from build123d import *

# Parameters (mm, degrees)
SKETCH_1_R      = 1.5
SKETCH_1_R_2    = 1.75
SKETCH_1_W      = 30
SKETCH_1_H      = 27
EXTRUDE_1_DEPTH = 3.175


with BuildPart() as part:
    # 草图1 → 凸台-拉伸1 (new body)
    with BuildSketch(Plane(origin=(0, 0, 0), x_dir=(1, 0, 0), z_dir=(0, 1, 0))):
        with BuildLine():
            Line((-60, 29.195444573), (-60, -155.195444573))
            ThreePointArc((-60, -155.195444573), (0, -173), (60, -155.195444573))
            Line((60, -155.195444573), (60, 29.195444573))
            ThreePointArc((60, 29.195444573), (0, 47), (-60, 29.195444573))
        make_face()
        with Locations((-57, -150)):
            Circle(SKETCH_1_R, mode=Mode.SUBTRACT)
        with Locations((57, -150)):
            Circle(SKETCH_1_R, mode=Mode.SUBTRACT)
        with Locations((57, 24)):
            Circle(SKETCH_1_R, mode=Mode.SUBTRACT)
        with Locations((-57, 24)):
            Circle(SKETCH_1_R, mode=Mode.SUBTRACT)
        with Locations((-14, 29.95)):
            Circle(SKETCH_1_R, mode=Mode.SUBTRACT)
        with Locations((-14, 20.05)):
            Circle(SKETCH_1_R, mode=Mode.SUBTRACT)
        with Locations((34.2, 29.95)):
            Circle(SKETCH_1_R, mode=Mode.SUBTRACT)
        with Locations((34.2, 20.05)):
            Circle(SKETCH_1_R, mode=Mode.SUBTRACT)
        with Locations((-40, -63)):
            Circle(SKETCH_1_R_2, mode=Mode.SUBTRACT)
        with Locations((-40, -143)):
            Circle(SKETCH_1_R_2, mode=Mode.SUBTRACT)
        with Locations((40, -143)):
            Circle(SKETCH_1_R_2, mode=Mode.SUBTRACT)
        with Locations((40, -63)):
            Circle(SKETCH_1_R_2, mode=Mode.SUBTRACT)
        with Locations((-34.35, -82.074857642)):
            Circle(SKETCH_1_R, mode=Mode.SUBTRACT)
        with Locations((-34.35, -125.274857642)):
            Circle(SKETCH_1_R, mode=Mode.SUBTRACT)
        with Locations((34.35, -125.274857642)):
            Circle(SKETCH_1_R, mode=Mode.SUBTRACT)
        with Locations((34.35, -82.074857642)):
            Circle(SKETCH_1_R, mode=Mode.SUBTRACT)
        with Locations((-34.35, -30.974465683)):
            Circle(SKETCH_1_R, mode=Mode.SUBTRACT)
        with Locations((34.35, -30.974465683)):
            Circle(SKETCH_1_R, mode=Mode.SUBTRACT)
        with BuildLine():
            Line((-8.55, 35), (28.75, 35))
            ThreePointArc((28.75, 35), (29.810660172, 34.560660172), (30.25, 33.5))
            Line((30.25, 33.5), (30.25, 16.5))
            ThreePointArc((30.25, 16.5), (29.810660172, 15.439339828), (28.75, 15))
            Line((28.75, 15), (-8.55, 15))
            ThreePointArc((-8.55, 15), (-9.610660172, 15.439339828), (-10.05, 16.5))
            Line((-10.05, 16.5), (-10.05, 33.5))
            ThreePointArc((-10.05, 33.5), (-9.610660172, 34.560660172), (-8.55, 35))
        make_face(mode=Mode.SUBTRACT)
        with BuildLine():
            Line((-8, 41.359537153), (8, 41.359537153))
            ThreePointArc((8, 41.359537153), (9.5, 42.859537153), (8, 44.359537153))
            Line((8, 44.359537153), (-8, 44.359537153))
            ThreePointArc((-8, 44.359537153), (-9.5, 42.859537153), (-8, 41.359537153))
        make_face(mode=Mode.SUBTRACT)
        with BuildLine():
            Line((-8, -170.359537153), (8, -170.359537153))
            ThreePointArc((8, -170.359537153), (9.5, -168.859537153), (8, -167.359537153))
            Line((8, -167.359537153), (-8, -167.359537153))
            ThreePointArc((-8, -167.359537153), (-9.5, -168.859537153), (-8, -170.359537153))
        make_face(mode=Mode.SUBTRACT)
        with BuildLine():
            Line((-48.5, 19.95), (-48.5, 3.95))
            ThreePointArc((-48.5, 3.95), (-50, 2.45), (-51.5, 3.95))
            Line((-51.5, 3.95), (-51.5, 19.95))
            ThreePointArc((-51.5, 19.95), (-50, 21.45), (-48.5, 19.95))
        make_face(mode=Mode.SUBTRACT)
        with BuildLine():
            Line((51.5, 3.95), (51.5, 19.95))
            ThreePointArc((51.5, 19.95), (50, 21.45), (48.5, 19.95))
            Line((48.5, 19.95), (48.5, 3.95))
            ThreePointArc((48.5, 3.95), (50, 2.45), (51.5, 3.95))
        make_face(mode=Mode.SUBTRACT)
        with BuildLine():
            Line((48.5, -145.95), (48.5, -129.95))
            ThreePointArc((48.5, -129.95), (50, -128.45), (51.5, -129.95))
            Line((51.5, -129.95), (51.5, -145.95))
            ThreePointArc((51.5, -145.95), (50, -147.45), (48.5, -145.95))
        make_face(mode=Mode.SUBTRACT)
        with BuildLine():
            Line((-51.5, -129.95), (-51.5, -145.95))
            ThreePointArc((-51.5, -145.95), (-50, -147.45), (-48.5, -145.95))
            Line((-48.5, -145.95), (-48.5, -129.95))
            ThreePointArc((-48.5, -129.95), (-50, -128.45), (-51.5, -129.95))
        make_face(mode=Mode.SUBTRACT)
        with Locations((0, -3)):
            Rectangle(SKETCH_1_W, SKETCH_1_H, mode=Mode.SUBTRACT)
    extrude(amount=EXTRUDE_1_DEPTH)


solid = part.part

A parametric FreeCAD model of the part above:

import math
import FreeCAD as App
import Part
import Sketcher

V = App.Vector

doc = App.newDocument("Part")
body = doc.addObject("PartDesign::Body", "Body")

# Sketch on XZ plane
sketch1 = body.newObject("Sketcher::SketchObject", "Sketch")
sketch1.AttachmentSupport = (doc.getObject("XZ_Plane"), [""])
sketch1.MapMode = "FlatFace"
sketch1.addGeometry([
    Part.LineSegment(V(-60, -29.195445, 0), V(-60, 155.195445, 0)),  # 0
    Part.ArcOfCircle(Part.Circle(V(0, 63, 0), V(0, 0, 1), 110), math.radians(56.944269), math.radians(123.055731)),  # 1
    Part.LineSegment(V(60, 155.195445, 0), V(60, -29.195445, 0)),  # 2
    Part.ArcOfCircle(Part.Circle(V(0, 63, 0), V(0, 0, 1), 110), math.radians(-123.055731), math.radians(-56.944269)),  # 3
    Part.Circle(V(-57, 150, 0), V(0, 0, 1), 1.5),  # 4
    Part.LineSegment(V(-51.5, 145.95, 0), V(-51.5, 129.95, 0)),  # 5
    Part.ArcOfCircle(Part.Circle(V(-50, 129.95, 0), V(0, 0, 1), 1.5), math.radians(180), math.radians(360)),  # 6
    Part.LineSegment(V(-48.5, 129.95, 0), V(-48.5, 145.95, 0)),  # 7
    Part.ArcOfCircle(Part.Circle(V(-50, 145.95, 0), V(0, 0, 1), 1.5), math.radians(0), math.radians(180)),  # 8
    Part.Circle(V(-40, 143, 0), V(0, 0, 1), 1.75),  # 9
    Part.Circle(V(-34.35, 125.274858, 0), V(0, 0, 1), 1.5),  # 10
    Part.Circle(V(-34.35, 82.074858, 0), V(0, 0, 1), 1.5),  # 11
    Part.LineSegment(V(8, 170.359537, 0), V(-8, 170.359537, 0)),  # 12
    Part.ArcOfCircle(Part.Circle(V(-8, 168.859537, 0), V(0, 0, 1), 1.5), math.radians(90), math.radians(270)),  # 13
    Part.LineSegment(V(-8, 167.359537, 0), V(8, 167.359537, 0)),  # 14
    Part.ArcOfCircle(Part.Circle(V(8, 168.859537, 0), V(0, 0, 1), 1.5), math.radians(-90), math.radians(90)),  # 15
    Part.Circle(V(57, 150, 0), V(0, 0, 1), 1.5),  # 16
    Part.Circle(V(40, 143, 0), V(0, 0, 1), 1.75),  # 17
    Part.Circle(V(34.35, 125.274858, 0), V(0, 0, 1), 1.5),  # 18
    Part.ArcOfCircle(Part.Circle(V(50, 145.95, 0), V(0, 0, 1), 1.5), math.radians(0), math.radians(180)),  # 19
    Part.LineSegment(V(48.5, 145.95, 0), V(48.5, 129.95, 0)),  # 20
    Part.ArcOfCircle(Part.Circle(V(50, 129.95, 0), V(0, 0, 1), 1.5), math.radians(180), math.radians(360)),  # 21
    Part.LineSegment(V(51.5, 129.95, 0), V(51.5, 145.95, 0)),  # 22
    Part.Circle(V(34.35, 82.074858, 0), V(0, 0, 1), 1.5),  # 23
    Part.Circle(V(-40, 63, 0), V(0, 0, 1), 1.75),  # 24
    Part.Circle(V(-34.35, 30.974466, 0), V(0, 0, 1), 1.5),  # 25
    Part.ArcOfCircle(Part.Circle(V(-50, -19.95, 0), V(0, 0, 1), 1.5), math.radians(180), math.radians(360)),  # 26
    Part.LineSegment(V(-48.5, -19.95, 0), V(-48.5, -3.95, 0)),  # 27
    Part.ArcOfCircle(Part.Circle(V(-50, -3.95, 0), V(0, 0, 1), 1.5), math.radians(0), math.radians(180)),  # 28
    Part.LineSegment(V(-51.5, -3.95, 0), V(-51.5, -19.95, 0)),  # 29
    Part.Circle(V(-57, -24, 0), V(0, 0, 1), 1.5),  # 30
    Part.Circle(V(-14, -20.05, 0), V(0, 0, 1), 1.5),  # 31
    Part.Circle(V(-14, -29.95, 0), V(0, 0, 1), 1.5),  # 32
    Part.Circle(V(40, 63, 0), V(0, 0, 1), 1.75),  # 33
    Part.Circle(V(34.35, 30.974466, 0), V(0, 0, 1), 1.5),  # 34
    Part.LineSegment(V(15, 16.5, 0), V(-15, 16.5, 0)),  # 35
    Part.LineSegment(V(-15, 16.5, 0), V(-15, -10.5, 0)),  # 36
    Part.LineSegment(V(-15, -10.5, 0), V(15, -10.5, 0)),  # 37
    Part.LineSegment(V(15, -10.5, 0), V(15, 16.5, 0)),  # 38
    Part.ArcOfCircle(Part.Circle(V(-8.55, -33.5, 0), V(0, 0, 1), 1.5), math.radians(180), math.radians(270)),  # 39
    Part.LineSegment(V(-8.55, -35, 0), V(28.75, -35, 0)),  # 40
    Part.ArcOfCircle(Part.Circle(V(28.75, -33.5, 0), V(0, 0, 1), 1.5), math.radians(-90), math.radians(0)),  # 41
    Part.LineSegment(V(30.25, -33.5, 0), V(30.25, -16.5, 0)),  # 42
    Part.ArcOfCircle(Part.Circle(V(28.75, -16.5, 0), V(0, 0, 1), 1.5), math.radians(0), math.radians(90)),  # 43
    Part.LineSegment(V(28.75, -15, 0), V(-8.55, -15, 0)),  # 44
    Part.ArcOfCircle(Part.Circle(V(-8.55, -16.5, 0), V(0, 0, 1), 1.5), math.radians(90), math.radians(180)),  # 45
    Part.LineSegment(V(-10.05, -16.5, 0), V(-10.05, -33.5, 0)),  # 46
    Part.LineSegment(V(8, -41.359537, 0), V(-8, -41.359537, 0)),  # 47
    Part.ArcOfCircle(Part.Circle(V(-8, -42.859537, 0), V(0, 0, 1), 1.5), math.radians(90), math.radians(270)),  # 48
    Part.LineSegment(V(-8, -44.359537, 0), V(8, -44.359537, 0)),  # 49
    Part.ArcOfCircle(Part.Circle(V(8, -42.859537, 0), V(0, 0, 1), 1.5), math.radians(-90), math.radians(90)),  # 50
    Part.LineSegment(V(51.5, -19.95, 0), V(51.5, -3.95, 0)),  # 51
    Part.ArcOfCircle(Part.Circle(V(50, -3.95, 0), V(0, 0, 1), 1.5), math.radians(0), math.radians(180)),  # 52
    Part.LineSegment(V(48.5, -3.95, 0), V(48.5, -19.95, 0)),  # 53
    Part.ArcOfCircle(Part.Circle(V(50, -19.95, 0), V(0, 0, 1), 1.5), math.radians(180), math.radians(360)),  # 54
    Part.Circle(V(34.2, -20.05, 0), V(0, 0, 1), 1.5),  # 55
    Part.Circle(V(34.2, -29.95, 0), V(0, 0, 1), 1.5),  # 56
    Part.Circle(V(57, -24, 0), V(0, 0, 1), 1.5),  # 57
], False)
sketch1.addConstraint([
    Sketcher.Constraint("Coincident", 0, 2, 1, 2),
    Sketcher.Constraint("Coincident", 1, 1, 2, 1),
    Sketcher.Constraint("Coincident", 2, 2, 3, 2),
    Sketcher.Constraint("Coincident", 3, 1, 0, 1),
    Sketcher.Constraint("Tangent", 5, 2, 6, 1),
    Sketcher.Constraint("Tangent", 6, 2, 7, 1),
    Sketcher.Constraint("Tangent", 7, 2, 8, 1),
    Sketcher.Constraint("Tangent", 8, 2, 5, 1),
    Sketcher.Constraint("Tangent", 12, 2, 13, 1),
    Sketcher.Constraint("Tangent", 13, 2, 14, 1),
    Sketcher.Constraint("Tangent", 14, 2, 15, 1),
    Sketcher.Constraint("Tangent", 15, 2, 12, 1),
    Sketcher.Constraint("Tangent", 19, 2, 20, 1),
    Sketcher.Constraint("Tangent", 20, 2, 21, 1),
    Sketcher.Constraint("Tangent", 21, 2, 22, 1),
    Sketcher.Constraint("Tangent", 22, 2, 19, 1),
    Sketcher.Constraint("Tangent", 26, 2, 27, 1),
    Sketcher.Constraint("Tangent", 27, 2, 28, 1),
    Sketcher.Constraint("Tangent", 28, 2, 29, 1),
    Sketcher.Constraint("Tangent", 29, 2, 26, 1),
    Sketcher.Constraint("Coincident", 35, 2, 36, 1),
    Sketcher.Constraint("Coincident", 36, 2, 37, 1),
    Sketcher.Constraint("Coincident", 37, 2, 38, 1),
    Sketcher.Constraint("Coincident", 38, 2, 35, 1),
    Sketcher.Constraint("Tangent", 39, 2, 40, 1),
    Sketcher.Constraint("Tangent", 40, 2, 41, 1),
    Sketcher.Constraint("Tangent", 41, 2, 42, 1),
    Sketcher.Constraint("Tangent", 42, 2, 43, 1),
    Sketcher.Constraint("Tangent", 43, 2, 44, 1),
    Sketcher.Constraint("Tangent", 44, 2, 45, 1),
    Sketcher.Constraint("Tangent", 45, 2, 46, 1),
    Sketcher.Constraint("Tangent", 46, 2, 39, 1),
    Sketcher.Constraint("Tangent", 47, 2, 48, 1),
    Sketcher.Constraint("Tangent", 48, 2, 49, 1),
    Sketcher.Constraint("Tangent", 49, 2, 50, 1),
    Sketcher.Constraint("Tangent", 50, 2, 47, 1),
    Sketcher.Constraint("Tangent", 51, 2, 52, 1),
    Sketcher.Constraint("Tangent", 52, 2, 53, 1),
    Sketcher.Constraint("Tangent", 53, 2, 54, 1),
    Sketcher.Constraint("Tangent", 54, 2, 51, 1),
    Sketcher.Constraint("Vertical", 0),
    Sketcher.Constraint("Vertical", 2),
    Sketcher.Constraint("Vertical", 5),
    Sketcher.Constraint("Vertical", 7),
    Sketcher.Constraint("Horizontal", 12),
    Sketcher.Constraint("Horizontal", 14),
    Sketcher.Constraint("Vertical", 20),
    Sketcher.Constraint("Vertical", 22),
    Sketcher.Constraint("Vertical", 27),
    Sketcher.Constraint("Vertical", 29),
    Sketcher.Constraint("Horizontal", 35),
    Sketcher.Constraint("Vertical", 36),
    Sketcher.Constraint("Horizontal", 37),
    Sketcher.Constraint("Vertical", 38),
    Sketcher.Constraint("Horizontal", 40),
    Sketcher.Constraint("Vertical", 42),
    Sketcher.Constraint("Horizontal", 44),
    Sketcher.Constraint("Vertical", 46),
    Sketcher.Constraint("Horizontal", 47),
    Sketcher.Constraint("Horizontal", 49),
    Sketcher.Constraint("Vertical", 51),
    Sketcher.Constraint("Vertical", 53),
    Sketcher.Constraint("Coincident", 3, 3, 1, 3),
    Sketcher.Constraint("Equal", 1, 3),
    Sketcher.Constraint("Equal", 4, 6),
    Sketcher.Constraint("Equal", 8, 10),
    Sketcher.Constraint("Equal", 10, 11),
    Sketcher.Constraint("Equal", 11, 13),
    Sketcher.Constraint("Equal", 15, 16),
    Sketcher.Constraint("Equal", 9, 17),
    Sketcher.Constraint("Equal", 16, 18),
    Sketcher.Constraint("Equal", 18, 19),
    Sketcher.Constraint("Equal", 21, 23),
    Sketcher.Constraint("Equal", 17, 24),
    Sketcher.Constraint("Equal", 23, 25),
    Sketcher.Constraint("Equal", 25, 26),
    Sketcher.Constraint("Equal", 28, 30),
    Sketcher.Constraint("Equal", 30, 31),
    Sketcher.Constraint("Equal", 31, 32),
    Sketcher.Constraint("Equal", 24, 33),
    Sketcher.Constraint("Equal", 32, 34),
    Sketcher.Constraint("Equal", 34, 39),
    Sketcher.Constraint("Equal", 39, 41),
    Sketcher.Constraint("Equal", 41, 43),
    Sketcher.Constraint("Equal", 43, 45),
    Sketcher.Constraint("Equal", 45, 48),
    Sketcher.Constraint("Equal", 50, 52),
    Sketcher.Constraint("Equal", 54, 55),
    Sketcher.Constraint("Equal", 55, 56),
    Sketcher.Constraint("Equal", 56, 57),
    Sketcher.Constraint("Symmetric", 4, 3, 16, 3, -2),
    Sketcher.Constraint("Symmetric", 9, 3, 17, 3, -2),
    Sketcher.Constraint("Symmetric", 10, 3, 18, 3, -2),
    Sketcher.Constraint("Symmetric", 8, 3, 19, 3, -2),
    Sketcher.Constraint("Symmetric", 11, 3, 23, 3, -2),
    Sketcher.Constraint("Symmetric", 24, 3, 33, 3, -2),
    Sketcher.Constraint("Symmetric", 25, 3, 34, 3, -2),
    Sketcher.Constraint("Symmetric", 28, 3, 52, 3, -2),
    Sketcher.Constraint("Symmetric", 30, 3, 57, 3, -2),
    Sketcher.Constraint("Symmetric", 0, 2, 1, 1, -2),
    Sketcher.Constraint("Horizontal", 6, 3, 21, 3),
    Sketcher.Constraint("Horizontal", 3, 3, 24, 3),
    Sketcher.Constraint("Horizontal", 26, 3, 54, 3),
    Sketcher.Constraint("Horizontal", 31, 3, 55, 3),
    Sketcher.Constraint("Horizontal", 32, 3, 56, 3),
    Sketcher.Constraint("Vertical", 10, 3, 11, 3),
    Sketcher.Constraint("Vertical", 9, 3, 24, 3),
    Sketcher.Constraint("Vertical", 11, 3, 25, 3),
    Sketcher.Constraint("Vertical", 8, 3, 26, 3),
    Sketcher.Constraint("Vertical", 4, 3, 30, 3),
    Sketcher.Constraint("Vertical", 31, 3, 32, 3),
    Sketcher.Constraint("Vertical", 13, 3, 48, 3),
    Sketcher.Constraint("Vertical", 15, 3, 50, 3),
    Sketcher.Constraint("Vertical", 55, 3, 56, 3),
    Sketcher.Constraint("Equal", 49, 5),
    Sketcher.Constraint("Equal", 22, 27),
    Sketcher.Constraint("Diameter", 4, 3.0),
    Sketcher.Constraint("Radius", 1, 110.0),
    Sketcher.Constraint("Diameter", 9, 3.5),
    Sketcher.Constraint("DistanceX", 12, 2, 12, 1, 16.0),
    Sketcher.Constraint("DistanceX", 35, 2, 35, 1, 30.0),
    Sketcher.Constraint("DistanceY", 36, 2, 36, 1, 27.0),
    Sketcher.Constraint("DistanceY", 42, 1, 42, 2, 17.0),
    Sketcher.Constraint("DistanceX", 40, 1, 40, 2, 37.3),
    Sketcher.Constraint("DistanceY", -1, 1, 1, 3, 63.0),
    Sketcher.Constraint("DistanceX", 4, 3, -1, 1, 57.0),
    Sketcher.Constraint("DistanceY", -1, 1, 4, 3, 150.0),
    Sketcher.Constraint("DistanceX", 6, 3, -1, 1, 50.0),
    Sketcher.Constraint("DistanceX", 9, 3, -1, 1, 40.0),
    Sketcher.Constraint("DistanceY", -1, 1, 9, 3, 143.0),
    Sketcher.Constraint("DistanceX", 13, 3, -1, 1, 8.0),
    Sketcher.Constraint("DistanceY", 30, 3, -1, 1, 24.0),
    Sketcher.Constraint("DistanceX", 31, 3, -1, 1, 14.0),
    Sketcher.Constraint("DistanceX", 0, 2, -1, 1, 60.0),
    Sketcher.Constraint("DistanceX", 35, 2, -1, 1, 15.0),
    Sketcher.Constraint("DistanceY", 39, 2, -1, 1, 35.0),
    Sketcher.Constraint("DistanceX", -1, 1, 55, 3, 34.2),
    Sketcher.Constraint("DistanceY", -1, 1, 35, 2, 16.5),
    Sketcher.Constraint("DistanceY", -1, 1, 6, 3, 129.95),
    Sketcher.Constraint("DistanceX", 10, 3, -1, 1, 34.35),
    Sketcher.Constraint("DistanceY", 26, 3, -1, 1, 19.95),
    Sketcher.Constraint("DistanceY", 31, 3, -1, 1, 20.05),
    Sketcher.Constraint("DistanceY", 32, 3, -1, 1, 29.95),
    Sketcher.Constraint("DistanceX", 39, 3, -1, 1, 8.55),
    Sketcher.Constraint("DistanceY", -1, 1, 10, 3, 125.274858),
    Sketcher.Constraint("DistanceY", -1, 1, 11, 3, 82.074858),
    Sketcher.Constraint("DistanceY", -1, 1, 13, 3, 168.859537),
    Sketcher.Constraint("DistanceY", -1, 1, 25, 3, 30.974466),
    Sketcher.Constraint("DistanceY", 48, 3, -1, 1, 42.859537),
])
pad1 = body.newObject("PartDesign::Pad", "Pad")
pad1.Profile = sketch1
pad1.Length = 3.175
pad1.Reversed = True

doc.recompute()
